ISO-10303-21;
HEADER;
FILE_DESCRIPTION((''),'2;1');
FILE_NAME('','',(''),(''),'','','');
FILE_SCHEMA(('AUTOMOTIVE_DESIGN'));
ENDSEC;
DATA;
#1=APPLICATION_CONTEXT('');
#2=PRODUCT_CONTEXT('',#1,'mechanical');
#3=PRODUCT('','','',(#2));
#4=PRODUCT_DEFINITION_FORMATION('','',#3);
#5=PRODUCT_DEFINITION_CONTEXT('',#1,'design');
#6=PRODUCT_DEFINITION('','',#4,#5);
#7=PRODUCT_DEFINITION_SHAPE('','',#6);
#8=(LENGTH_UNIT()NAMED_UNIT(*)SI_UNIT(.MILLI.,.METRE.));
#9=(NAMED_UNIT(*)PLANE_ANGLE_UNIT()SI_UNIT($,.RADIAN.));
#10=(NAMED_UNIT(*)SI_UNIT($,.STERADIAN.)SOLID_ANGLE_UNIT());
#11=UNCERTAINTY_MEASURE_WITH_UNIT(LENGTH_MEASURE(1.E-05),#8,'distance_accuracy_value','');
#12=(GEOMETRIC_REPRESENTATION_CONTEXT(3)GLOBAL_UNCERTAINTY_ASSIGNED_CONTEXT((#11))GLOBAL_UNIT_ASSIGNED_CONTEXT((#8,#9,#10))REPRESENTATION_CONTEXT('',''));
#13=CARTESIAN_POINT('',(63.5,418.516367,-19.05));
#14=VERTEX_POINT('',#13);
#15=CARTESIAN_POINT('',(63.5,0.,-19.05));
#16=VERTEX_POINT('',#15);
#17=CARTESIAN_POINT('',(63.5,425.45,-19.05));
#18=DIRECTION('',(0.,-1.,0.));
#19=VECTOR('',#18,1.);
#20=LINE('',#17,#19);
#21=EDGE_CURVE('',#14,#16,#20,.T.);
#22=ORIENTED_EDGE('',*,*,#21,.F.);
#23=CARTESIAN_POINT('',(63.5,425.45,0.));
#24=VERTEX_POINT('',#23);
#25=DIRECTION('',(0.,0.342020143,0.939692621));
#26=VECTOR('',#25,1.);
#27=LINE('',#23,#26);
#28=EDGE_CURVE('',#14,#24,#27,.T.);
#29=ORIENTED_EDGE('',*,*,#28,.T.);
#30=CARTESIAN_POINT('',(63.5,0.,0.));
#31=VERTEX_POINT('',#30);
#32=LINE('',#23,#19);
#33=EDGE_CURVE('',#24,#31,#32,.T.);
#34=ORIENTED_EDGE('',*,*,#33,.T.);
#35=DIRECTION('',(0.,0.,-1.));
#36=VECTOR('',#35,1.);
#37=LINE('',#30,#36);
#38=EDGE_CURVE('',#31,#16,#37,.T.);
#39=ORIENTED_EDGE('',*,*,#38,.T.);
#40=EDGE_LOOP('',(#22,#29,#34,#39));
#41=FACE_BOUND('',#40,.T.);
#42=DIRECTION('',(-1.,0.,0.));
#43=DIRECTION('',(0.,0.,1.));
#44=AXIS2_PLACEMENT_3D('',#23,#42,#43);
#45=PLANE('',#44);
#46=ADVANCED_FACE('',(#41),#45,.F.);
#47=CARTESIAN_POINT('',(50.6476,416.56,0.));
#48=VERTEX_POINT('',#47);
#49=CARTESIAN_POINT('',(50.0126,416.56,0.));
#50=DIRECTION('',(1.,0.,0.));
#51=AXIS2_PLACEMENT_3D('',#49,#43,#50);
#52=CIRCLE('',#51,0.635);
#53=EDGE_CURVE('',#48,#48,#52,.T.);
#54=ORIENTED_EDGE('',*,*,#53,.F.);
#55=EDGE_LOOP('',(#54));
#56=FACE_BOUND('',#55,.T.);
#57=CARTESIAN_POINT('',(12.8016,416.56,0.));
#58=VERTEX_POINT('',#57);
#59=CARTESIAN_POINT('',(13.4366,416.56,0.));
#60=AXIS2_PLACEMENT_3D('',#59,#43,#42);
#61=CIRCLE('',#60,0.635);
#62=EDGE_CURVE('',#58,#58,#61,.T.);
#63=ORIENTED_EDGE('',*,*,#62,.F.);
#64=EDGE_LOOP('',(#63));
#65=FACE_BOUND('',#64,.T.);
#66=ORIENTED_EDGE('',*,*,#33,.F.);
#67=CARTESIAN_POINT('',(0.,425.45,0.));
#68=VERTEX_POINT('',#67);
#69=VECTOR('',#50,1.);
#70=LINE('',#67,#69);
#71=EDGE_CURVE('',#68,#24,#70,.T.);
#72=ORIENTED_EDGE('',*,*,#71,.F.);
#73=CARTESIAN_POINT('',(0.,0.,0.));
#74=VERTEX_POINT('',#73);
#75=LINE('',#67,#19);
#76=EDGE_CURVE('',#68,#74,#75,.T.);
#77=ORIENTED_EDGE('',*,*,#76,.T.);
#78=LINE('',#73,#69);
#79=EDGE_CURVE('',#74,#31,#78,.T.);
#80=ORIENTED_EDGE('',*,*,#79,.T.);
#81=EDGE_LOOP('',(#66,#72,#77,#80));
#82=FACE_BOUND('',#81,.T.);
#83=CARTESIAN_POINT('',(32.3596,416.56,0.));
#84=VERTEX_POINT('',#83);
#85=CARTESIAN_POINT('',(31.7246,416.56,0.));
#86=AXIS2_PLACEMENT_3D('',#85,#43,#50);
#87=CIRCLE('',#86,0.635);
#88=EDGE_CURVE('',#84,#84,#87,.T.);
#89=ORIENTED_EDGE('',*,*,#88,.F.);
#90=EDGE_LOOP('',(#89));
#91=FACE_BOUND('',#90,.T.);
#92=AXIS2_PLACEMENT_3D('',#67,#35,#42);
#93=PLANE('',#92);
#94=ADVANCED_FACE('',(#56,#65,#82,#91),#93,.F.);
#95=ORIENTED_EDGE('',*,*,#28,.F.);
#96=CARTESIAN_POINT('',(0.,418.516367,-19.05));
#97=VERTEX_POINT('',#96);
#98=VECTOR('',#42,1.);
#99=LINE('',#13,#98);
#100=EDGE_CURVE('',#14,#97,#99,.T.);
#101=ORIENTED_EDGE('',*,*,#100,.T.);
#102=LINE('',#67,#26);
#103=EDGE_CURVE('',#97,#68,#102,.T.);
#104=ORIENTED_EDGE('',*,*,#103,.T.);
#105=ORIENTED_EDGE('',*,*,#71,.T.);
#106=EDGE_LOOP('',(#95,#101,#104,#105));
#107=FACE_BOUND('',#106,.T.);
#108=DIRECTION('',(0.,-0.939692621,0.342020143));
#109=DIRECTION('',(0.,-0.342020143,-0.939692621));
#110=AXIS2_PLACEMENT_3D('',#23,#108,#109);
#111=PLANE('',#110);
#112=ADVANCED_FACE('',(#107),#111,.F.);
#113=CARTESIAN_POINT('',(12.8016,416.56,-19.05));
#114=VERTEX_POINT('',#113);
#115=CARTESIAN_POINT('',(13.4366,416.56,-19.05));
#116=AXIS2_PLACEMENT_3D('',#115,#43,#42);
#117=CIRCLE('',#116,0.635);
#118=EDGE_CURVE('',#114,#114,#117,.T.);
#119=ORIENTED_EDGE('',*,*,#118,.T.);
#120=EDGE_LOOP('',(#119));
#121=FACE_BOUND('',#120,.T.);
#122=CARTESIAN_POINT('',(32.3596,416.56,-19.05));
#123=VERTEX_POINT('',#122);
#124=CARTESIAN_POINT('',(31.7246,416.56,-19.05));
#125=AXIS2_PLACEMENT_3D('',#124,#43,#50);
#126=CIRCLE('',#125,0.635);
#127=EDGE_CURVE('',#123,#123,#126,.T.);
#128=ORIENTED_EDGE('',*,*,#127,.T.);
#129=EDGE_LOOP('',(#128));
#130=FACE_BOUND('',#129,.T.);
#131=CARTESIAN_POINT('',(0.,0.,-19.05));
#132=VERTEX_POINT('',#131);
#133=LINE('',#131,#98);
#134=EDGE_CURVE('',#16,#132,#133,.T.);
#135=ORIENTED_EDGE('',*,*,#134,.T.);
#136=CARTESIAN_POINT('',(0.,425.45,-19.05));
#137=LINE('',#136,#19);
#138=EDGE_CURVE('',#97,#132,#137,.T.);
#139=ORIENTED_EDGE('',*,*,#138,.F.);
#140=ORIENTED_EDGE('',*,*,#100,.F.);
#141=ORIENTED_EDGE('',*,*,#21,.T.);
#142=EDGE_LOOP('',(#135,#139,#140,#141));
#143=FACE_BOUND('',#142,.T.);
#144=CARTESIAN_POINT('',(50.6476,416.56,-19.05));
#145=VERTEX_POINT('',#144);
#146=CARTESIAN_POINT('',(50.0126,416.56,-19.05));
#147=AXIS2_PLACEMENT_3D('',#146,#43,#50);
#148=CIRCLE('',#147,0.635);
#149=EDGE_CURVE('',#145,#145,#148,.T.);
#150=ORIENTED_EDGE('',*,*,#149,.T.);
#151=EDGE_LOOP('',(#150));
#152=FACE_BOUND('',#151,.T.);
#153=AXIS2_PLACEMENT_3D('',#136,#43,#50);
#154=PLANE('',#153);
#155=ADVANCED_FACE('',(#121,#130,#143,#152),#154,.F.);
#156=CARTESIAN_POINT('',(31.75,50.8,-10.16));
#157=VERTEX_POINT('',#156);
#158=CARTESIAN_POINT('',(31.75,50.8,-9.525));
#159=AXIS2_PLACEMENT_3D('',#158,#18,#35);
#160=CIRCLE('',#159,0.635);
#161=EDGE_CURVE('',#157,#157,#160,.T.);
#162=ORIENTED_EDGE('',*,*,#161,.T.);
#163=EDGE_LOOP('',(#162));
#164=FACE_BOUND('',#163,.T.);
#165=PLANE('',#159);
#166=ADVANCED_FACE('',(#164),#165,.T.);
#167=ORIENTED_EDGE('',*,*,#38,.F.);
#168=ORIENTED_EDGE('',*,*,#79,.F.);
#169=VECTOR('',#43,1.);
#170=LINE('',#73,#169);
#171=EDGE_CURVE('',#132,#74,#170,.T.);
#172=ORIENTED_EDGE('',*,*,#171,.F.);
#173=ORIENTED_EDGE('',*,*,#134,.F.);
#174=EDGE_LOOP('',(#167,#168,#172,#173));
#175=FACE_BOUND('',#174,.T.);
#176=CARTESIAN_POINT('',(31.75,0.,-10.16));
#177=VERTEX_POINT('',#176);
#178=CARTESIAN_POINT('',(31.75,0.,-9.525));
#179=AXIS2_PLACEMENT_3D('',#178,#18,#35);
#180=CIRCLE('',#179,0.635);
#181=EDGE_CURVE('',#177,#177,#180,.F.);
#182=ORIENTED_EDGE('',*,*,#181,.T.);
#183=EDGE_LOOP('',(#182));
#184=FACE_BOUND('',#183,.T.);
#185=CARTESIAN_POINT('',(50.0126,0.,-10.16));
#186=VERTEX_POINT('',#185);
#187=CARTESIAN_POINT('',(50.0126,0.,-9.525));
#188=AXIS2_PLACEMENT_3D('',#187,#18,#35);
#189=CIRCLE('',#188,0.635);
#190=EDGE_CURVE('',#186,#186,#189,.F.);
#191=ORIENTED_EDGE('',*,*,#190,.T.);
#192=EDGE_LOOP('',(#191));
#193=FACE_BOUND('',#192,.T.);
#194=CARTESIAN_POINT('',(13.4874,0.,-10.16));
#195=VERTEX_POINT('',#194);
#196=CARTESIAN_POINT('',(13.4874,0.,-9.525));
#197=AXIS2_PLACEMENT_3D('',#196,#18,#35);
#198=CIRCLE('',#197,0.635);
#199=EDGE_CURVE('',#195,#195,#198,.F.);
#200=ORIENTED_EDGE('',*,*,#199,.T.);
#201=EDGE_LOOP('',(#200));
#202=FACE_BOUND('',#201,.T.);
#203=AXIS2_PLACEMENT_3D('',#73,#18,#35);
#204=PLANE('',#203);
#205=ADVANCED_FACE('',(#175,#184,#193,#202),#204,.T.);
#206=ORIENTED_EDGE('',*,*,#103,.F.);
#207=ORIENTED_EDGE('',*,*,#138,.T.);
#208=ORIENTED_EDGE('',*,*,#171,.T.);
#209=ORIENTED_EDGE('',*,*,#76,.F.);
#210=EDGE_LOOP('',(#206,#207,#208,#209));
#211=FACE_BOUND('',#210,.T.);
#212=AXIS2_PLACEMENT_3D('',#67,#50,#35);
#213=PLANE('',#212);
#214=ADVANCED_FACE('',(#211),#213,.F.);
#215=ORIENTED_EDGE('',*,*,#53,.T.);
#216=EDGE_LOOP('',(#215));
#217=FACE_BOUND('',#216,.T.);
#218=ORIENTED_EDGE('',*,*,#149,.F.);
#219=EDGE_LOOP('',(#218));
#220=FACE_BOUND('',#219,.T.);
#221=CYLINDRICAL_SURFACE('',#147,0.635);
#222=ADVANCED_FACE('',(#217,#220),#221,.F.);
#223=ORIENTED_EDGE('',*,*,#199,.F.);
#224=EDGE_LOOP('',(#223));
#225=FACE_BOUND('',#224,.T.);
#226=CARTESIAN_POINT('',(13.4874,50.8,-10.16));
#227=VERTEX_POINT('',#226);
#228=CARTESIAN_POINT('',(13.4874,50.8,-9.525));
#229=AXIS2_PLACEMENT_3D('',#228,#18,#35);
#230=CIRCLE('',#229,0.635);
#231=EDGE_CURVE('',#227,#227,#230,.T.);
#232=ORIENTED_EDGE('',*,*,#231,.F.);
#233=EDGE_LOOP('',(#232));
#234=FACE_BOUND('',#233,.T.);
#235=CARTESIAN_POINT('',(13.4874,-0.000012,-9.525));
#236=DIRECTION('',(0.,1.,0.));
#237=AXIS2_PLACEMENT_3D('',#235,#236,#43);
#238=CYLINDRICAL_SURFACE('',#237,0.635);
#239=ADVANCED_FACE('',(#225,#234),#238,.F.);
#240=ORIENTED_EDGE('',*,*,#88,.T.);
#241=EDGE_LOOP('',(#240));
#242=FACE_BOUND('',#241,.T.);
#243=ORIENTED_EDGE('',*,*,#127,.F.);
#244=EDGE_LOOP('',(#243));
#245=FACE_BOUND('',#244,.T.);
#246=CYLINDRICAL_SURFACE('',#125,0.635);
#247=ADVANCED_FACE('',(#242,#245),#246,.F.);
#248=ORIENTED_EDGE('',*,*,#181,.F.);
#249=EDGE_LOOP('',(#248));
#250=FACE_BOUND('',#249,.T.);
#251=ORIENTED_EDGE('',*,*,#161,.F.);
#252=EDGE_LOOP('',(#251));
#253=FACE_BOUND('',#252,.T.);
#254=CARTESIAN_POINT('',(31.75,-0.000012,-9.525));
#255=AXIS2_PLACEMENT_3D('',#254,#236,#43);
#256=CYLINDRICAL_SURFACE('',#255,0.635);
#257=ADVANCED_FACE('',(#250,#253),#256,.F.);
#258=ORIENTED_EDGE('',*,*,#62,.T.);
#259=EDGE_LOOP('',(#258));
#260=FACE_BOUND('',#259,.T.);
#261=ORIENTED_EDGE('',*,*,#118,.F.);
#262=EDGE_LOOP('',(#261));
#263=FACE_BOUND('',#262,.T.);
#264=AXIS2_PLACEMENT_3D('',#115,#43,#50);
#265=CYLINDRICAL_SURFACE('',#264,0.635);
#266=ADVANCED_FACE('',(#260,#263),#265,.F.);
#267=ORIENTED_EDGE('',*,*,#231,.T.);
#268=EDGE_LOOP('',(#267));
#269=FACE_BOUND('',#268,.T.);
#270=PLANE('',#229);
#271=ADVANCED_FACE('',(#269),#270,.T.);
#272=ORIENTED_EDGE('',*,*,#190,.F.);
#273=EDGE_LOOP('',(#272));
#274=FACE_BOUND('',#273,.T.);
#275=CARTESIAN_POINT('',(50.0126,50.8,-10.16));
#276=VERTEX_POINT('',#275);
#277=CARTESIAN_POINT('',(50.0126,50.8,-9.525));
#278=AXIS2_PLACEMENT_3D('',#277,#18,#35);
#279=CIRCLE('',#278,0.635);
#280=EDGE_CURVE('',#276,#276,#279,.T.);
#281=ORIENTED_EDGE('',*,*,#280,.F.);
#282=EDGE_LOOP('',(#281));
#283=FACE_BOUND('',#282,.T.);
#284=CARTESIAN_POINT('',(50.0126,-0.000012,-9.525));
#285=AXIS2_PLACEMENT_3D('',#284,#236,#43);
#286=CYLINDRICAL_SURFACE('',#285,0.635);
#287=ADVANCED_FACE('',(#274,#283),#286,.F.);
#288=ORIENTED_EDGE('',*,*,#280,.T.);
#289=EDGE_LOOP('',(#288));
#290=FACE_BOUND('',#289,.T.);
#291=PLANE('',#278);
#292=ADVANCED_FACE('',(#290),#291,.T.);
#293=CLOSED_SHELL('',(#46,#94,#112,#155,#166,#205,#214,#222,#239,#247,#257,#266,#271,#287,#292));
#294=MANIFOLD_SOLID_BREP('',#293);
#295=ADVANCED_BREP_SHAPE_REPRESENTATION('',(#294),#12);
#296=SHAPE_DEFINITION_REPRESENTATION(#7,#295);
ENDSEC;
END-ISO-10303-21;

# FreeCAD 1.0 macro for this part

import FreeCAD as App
import Part
import Sketcher

V = App.Vector
Q = App.Units.Quantity


def add_polygon(sketch, points):
    """Adds a closed chain of lines whose ends are joined by coincident constraints."""
    first, n = sketch.GeometryCount, len(points)
    for a, b in zip(points, points[1:] + points[:1]):
        sketch.addGeometry(Part.LineSegment(App.Vector(*a, 0), App.Vector(*b, 0)), False)
    for i in range(n):
        sketch.addConstraint(Sketcher.Constraint("Coincident", first + i, 2, first + (i + 1) % n, 1))

doc = App.newDocument("Part")
params = doc.addObject("Spreadsheet::Sheet", "Params")
for row, (alias, value) in enumerate([
    ("sketch1_width", "2.5 in"),
    ("sketch1_height", "0.75 in"),
    ("pad1_length", "16.75 in"),
    ("sketch2_diameter", "0.05 in"),
    ("pocket1_length", "431.584318 mm"),
    ("pocket1_length2", "2 in"),
    ("sketch3_diameter", "0.05 in"),
    ("sketch4_height", "0.75 in"),
], start=1):
    params.set(f"A{row}", alias)
    params.set(f"B{row}", "=" + value)
    params.setAlias(f"B{row}", alias)

body = doc.addObject("PartDesign::Body", "Body")

# Sketch on XZ plane
sketch1 = body.newObject("Sketcher::SketchObject", "Sketch")
sketch1.AttachmentSupport = (doc.getObject("XZ_Plane"), [""])
sketch1.MapMode = "FlatFace"
add_polygon(sketch1, [(0, -19), (0, 0), (64, 0), (64, -19)])  # lines 0-3
sketch1.addConstraint([
    Sketcher.Constraint("Vertical", 0),
    Sketcher.Constraint("Horizontal", 1),
    Sketcher.Constraint("Vertical", 2),
    Sketcher.Constraint("Horizontal", 3),
    Sketcher.Constraint("Coincident", 0, 2, -1, 1),
    Sketcher.Constraint("DistanceX", 1, 1, 1, 2, Q("2.5 in")),
    Sketcher.Constraint("DistanceY", 0, 1, 0, 2, Q("0.75 in")),
])
sketch1.setExpression("Constraints[9]", "Params.sketch1_width")
sketch1.setExpression("Constraints[10]", "Params.sketch1_height")
pad1 = body.newObject("PartDesign::Pad", "Pad")
pad1.Profile = sketch1
pad1.setExpression("Length", "Params.pad1_length")
pad1.Reversed = True

# Sketch on XZ plane
sketch2 = body.newObject("Sketcher::SketchObject", "Sketch001")
sketch2.AttachmentSupport = (doc.getObject("XZ_Plane"), [""])
sketch2.MapMode = "FlatFace"
sketch2.addGeometry([
    Part.Circle(V(13.5, -9.5, 0), V(0, 0, 1), 0.6),
    Part.Circle(V(31.8, -9.5, 0), V(0, 0, 1), 0.6),
    Part.Circle(V(50, -9.5, 0), V(0, 0, 1), 0.6),
], False)
sketch2.addConstraint([
    Sketcher.Constraint("Equal", 0, 1),
    Sketcher.Constraint("Equal", 1, 2),
    Sketcher.Constraint("Horizontal", 0, 3, 1, 3),
    Sketcher.Constraint("Horizontal", 1, 3, 2, 3),
    Sketcher.Constraint("Diameter", 0, Q("0.05 in")),
    Sketcher.Constraint("DistanceX", -1, 1, 1, 3, Q("1.25 in")),
    Sketcher.Constraint("DistanceX", -1, 1, 0, 3, Q("0.531 in")),
    Sketcher.Constraint("DistanceY", 0, 3, -1, 1, Q("0.375 in")),
    Sketcher.Constraint("DistanceX", -1, 1, 2, 3, Q("1.969 in")),
])
sketch2.setExpression("Constraints[4]", "Params.sketch2_diameter")
pocket1 = body.newObject("PartDesign::Pocket", "Pocket")
pocket1.Profile = sketch2
pocket1.Type = "TwoLengths"
pocket1.setExpression("Length", "Params.pocket1_length")
pocket1.setExpression("Length2", "Params.pocket1_length2")
pocket1.Reversed = True

# Sketch on XY plane
sketch3 = body.newObject("Sketcher::SketchObject", "Sketch002")
sketch3.AttachmentSupport = (doc.getObject("XY_Plane"), [""])
sketch3.MapMode = "FlatFace"
sketch3.addGeometry([
    Part.Circle(V(31.7, 416.6, 0), V(0, 0, 1), 0.6),
    Part.Circle(V(50, 416.6, 0), V(0, 0, 1), 0.6),
    Part.Circle(V(13.4, 416.6, 0), V(0, 0, 1), 0.6),
], False)
sketch3.addConstraint([
    Sketcher.Constraint("Equal", 0, 1),
    Sketcher.Constraint("Equal", 1, 2),
    Sketcher.Constraint("Horizontal", 0, 3, 1, 3),
    Sketcher.Constraint("Horizontal", 1, 3, 2, 3),
    Sketcher.Constraint("Diameter", 0, Q("0.05 in")),
    Sketcher.Constraint("DistanceY", -1, 1, 0, 3, Q("16.4 in")),
    Sketcher.Constraint("DistanceX", 0, 3, 1, 3, Q("0.72 in")),
    Sketcher.Constraint("DistanceX", 2, 3, 0, 3, Q("0.72 in")),
    Sketcher.Constraint("DistanceX", -1, 1, 0, 3, Q("1.249 in")),
])
sketch3.setExpression("Constraints[4]", "Params.sketch3_diameter")
pocket2 = body.newObject("PartDesign::Pocket", "Pocket001")
pocket2.Profile = sketch3
pocket2.Type = "ThroughAll"

# Sketch on YZ plane
sketch4 = body.newObject("Sketcher::SketchObject", "Sketch003")
sketch4.AttachmentSupport = (doc.getObject("YZ_Plane"), [""])
sketch4.MapMode = "FlatFace"
add_polygon(sketch4, [(419, -19), (425, 0), (425, -19)])  # lines 0-2
sketch4.addConstraint([
    Sketcher.Constraint("Vertical", 1),
    Sketcher.Constraint("Horizontal", 2),
    Sketcher.Constraint("PointOnObject", 0, 2, -1),
    Sketcher.Constraint("Angle", 0, Q("70 deg")),
    Sketcher.Constraint("DistanceY", 1, 2, 1, 1, Q("0.75 in")),
    Sketcher.Constraint("DistanceX", -1, 1, 0, 2, Q("16.75 in")),
])
sketch4.setExpression("Constraints[7]", "Params.sketch4_height")
pocket3 = body.newObject("PartDesign::Pocket", "Pocket002")
pocket3.Profile = sketch4
pocket3.Type = "ThroughAll"
pocket3.Reversed = True

doc.recompute()
